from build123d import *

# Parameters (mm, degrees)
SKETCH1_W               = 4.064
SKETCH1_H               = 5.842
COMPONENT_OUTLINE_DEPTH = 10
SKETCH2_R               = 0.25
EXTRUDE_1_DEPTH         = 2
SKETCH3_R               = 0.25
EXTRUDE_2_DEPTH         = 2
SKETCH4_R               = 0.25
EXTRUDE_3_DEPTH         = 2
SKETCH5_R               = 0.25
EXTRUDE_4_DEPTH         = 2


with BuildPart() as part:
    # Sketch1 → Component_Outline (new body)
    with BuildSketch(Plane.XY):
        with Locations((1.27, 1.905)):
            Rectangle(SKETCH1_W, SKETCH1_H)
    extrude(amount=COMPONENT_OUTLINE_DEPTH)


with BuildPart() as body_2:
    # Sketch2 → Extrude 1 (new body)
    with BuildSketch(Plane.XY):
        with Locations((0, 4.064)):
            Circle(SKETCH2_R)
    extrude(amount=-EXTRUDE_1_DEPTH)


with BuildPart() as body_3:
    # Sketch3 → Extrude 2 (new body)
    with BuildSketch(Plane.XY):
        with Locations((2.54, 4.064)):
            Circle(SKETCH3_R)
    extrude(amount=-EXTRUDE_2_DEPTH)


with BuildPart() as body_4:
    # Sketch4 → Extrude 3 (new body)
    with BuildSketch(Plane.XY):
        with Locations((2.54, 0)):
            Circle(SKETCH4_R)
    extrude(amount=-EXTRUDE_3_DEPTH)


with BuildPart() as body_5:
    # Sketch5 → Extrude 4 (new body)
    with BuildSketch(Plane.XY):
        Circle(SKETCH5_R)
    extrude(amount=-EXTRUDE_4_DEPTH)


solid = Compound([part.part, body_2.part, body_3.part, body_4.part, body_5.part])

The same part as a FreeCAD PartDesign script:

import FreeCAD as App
import Part
import Sketcher
from FreeCAD import Vector
Q = App.Units.Quantity

doc = App.newDocument("Part")
body = doc.addObject("PartDesign::Body", "Body")

# Sketch on XY plane
sketch1 = body.newObject("Sketcher::SketchObject", "Sketch")
sketch1.AttachmentSupport = (doc.getObject("XY_Plane"), [""])
sketch1.MapMode = "FlatFace"
sketch1.addGeometry([
    Part.LineSegment(Vector(-0.8, 4.8, 0), Vector(-0.8, -1, 0)),
    Part.LineSegment(Vector(-0.8, -1, 0), Vector(3.3, -1, 0)),
    Part.LineSegment(Vector(3.3, -1, 0), Vector(3.3, 4.8, 0)),
    Part.LineSegment(Vector(3.3, 4.8, 0), Vector(-0.8, 4.8, 0)),
], False)
sketch1.addConstraint([
    Sketcher.Constraint("Coincident", 0, 2, 1, 1),
    Sketcher.Constraint("Coincident", 1, 2, 2, 1),
    Sketcher.Constraint("Coincident", 2, 2, 3, 1),
    Sketcher.Constraint("Coincident", 3, 2, 0, 1),
    Sketcher.Constraint("Vertical", 0),
    Sketcher.Constraint("Horizontal", 1),
    Sketcher.Constraint("Vertical", 2),
    Sketcher.Constraint("Horizontal", 3),
    Sketcher.Constraint("DistanceX", 1, 1, 1, 2, Q("4.064 mm")),
    Sketcher.Constraint("DistanceY", 0, 2, 0, 1, Q("5.842 mm")),
    Sketcher.Constraint("DistanceX", 0, 2, -1, 1, Q("0.762 mm")),
    Sketcher.Constraint("DistanceY", 0, 2, -1, 1, Q("1.016 mm")),
])
pad1 = body.newObject("PartDesign::Pad", "Pad")
pad1.Profile = sketch1
pad1.Length = 10
body2 = doc.addObject("PartDesign::Body", "Body001")

# Sketch on XY plane
sketch2 = body2.newObject("Sketcher::SketchObject", "Sketch001")
sketch2.AttachmentSupport = (doc.getObject("XY_Plane001"), [""])
sketch2.MapMode = "FlatFace"
sketch2.addGeometry(Part.Circle(Vector(0, 4.06, 0), Vector(0, 0, 1), 0.25), False)
sketch2.addConstraint([
    Sketcher.Constraint("PointOnObject", 0, 3, -2),
    Sketcher.Constraint("Diameter", 0, Q("0.5 mm")),
    Sketcher.Constraint("DistanceY", -1, 1, 0, 3, Q("4.064 mm")),
])
pad2 = body2.newObject("PartDesign::Pad", "Pad001")
pad2.Profile = sketch2
pad2.Length = 2
pad2.Reversed = True
body3 = doc.addObject("PartDesign::Body", "Body002")

# Sketch on XY plane
sketch3 = body3.newObject("Sketcher::SketchObject", "Sketch002")
sketch3.AttachmentSupport = (doc.getObject("XY_Plane002"), [""])
sketch3.MapMode = "FlatFace"
sketch3.addGeometry(Part.Circle(Vector(2.54, 4.06, 0), Vector(0, 0, 1), 0.25), False)
sketch3.addConstraint([
    Sketcher.Constraint("Diameter", 0, Q("0.5 mm")),
    Sketcher.Constraint("DistanceX", -1, 1, 0, 3, Q("2.54 mm")),
    Sketcher.Constraint("DistanceY", -1, 1, 0, 3, Q("4.064 mm")),
])
pad3 = body3.newObject("PartDesign::Pad", "Pad002")
pad3.Profile = sketch3
pad3.Length = 2
pad3.Reversed = True
body4 = doc.addObject("PartDesign::Body", "Body003")

# Sketch on XY plane
sketch4 = body4.newObject("Sketcher::SketchObject", "Sketch003")
sketch4.AttachmentSupport = (doc.getObject("XY_Plane003"), [""])
sketch4.MapMode = "FlatFace"
sketch4.addGeometry(Part.Circle(Vector(2.54, 0, 0), Vector(0, 0, 1), 0.25), False)
sketch4.addConstraint([
    Sketcher.Constraint("PointOnObject", 0, 3, -1),
    Sketcher.Constraint("Diameter", 0, Q("0.5 mm")),
    Sketcher.Constraint("DistanceX", -1, 1, 0, 3, Q("2.54 mm")),
])
pad4 = body4.newObject("PartDesign::Pad", "Pad003")
pad4.Profile = sketch4
pad4.Length = 2
pad4.Reversed = True
body5 = doc.addObject("PartDesign::Body", "Body004")

# Sketch on XY plane
sketch5 = body5.newObject("Sketcher::SketchObject", "Sketch004")
sketch5.AttachmentSupport = (doc.getObject("XY_Plane004"), [""])
sketch5.MapMode = "FlatFace"
sketch5.addGeometry(Part.Circle(Vector(0, 0, 0), Vector(0, 0, 1), 0.25), False)
sketch5.addConstraint([
    Sketcher.Constraint("Coincident", 0, 3, -1, 1),
    Sketcher.Constraint("Diameter", 0, Q("0.5 mm")),
])
pad5 = body5.newObject("PartDesign::Pad", "Pad004")
pad5.Profile = sketch5
pad5.Length = 2
pad5.Reversed = True

doc.recompute()
